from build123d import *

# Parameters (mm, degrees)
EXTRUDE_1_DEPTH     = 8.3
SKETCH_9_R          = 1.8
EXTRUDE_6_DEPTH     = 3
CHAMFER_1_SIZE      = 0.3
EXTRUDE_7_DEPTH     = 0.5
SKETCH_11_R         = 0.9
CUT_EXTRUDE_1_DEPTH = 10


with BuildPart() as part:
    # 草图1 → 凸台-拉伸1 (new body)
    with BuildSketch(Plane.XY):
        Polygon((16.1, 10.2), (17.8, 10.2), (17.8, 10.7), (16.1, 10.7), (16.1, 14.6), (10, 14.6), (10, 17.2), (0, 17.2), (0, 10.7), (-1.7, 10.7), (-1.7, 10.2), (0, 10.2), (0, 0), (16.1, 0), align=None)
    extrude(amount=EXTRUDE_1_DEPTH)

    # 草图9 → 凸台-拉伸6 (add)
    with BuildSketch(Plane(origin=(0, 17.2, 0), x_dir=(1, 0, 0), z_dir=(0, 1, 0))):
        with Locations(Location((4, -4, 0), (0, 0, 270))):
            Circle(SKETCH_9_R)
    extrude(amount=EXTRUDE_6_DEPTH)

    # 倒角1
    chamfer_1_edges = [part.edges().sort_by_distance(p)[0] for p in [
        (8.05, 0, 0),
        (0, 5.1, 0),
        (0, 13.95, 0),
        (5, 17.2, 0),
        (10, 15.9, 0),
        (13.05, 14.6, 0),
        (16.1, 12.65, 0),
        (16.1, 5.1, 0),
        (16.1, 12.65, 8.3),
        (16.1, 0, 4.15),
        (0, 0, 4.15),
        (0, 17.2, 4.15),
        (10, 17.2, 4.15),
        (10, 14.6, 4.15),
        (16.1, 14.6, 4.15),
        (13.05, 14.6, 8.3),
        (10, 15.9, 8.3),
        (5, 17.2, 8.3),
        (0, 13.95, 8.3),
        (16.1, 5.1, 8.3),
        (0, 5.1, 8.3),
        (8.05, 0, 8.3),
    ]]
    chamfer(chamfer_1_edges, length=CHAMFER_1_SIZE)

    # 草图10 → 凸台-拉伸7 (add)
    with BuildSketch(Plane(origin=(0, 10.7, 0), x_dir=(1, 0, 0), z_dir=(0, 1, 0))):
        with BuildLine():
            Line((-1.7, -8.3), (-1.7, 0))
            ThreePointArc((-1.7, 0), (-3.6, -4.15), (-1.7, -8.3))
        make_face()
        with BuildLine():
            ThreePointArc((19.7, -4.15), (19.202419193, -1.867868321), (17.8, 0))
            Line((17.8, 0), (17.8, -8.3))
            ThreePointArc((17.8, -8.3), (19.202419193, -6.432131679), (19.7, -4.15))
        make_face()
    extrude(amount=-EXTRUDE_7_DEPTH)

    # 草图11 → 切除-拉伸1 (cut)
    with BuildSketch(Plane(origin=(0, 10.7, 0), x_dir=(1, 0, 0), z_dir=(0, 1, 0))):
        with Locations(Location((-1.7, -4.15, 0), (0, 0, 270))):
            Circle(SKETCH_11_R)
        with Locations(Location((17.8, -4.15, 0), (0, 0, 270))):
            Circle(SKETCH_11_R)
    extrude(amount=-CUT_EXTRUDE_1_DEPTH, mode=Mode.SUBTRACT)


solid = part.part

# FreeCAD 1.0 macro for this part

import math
import FreeCAD as App
import Part
import Sketcher
from FreeCAD import Vector
Q = App.Units.Quantity


def edges_at(feature, points):
    """Names of the edges that pass closest to the given points."""
    edges = feature.Shape.Edges
    near = lambda p: min(range(len(edges)), key=lambda i: edges[i].distToShape(Part.Vertex(*p))[0])
    return sorted({f"Edge{near(p) + 1}" for p in points})


def add_polygon(sketch, points):
    """Adds a closed chain of lines whose ends are joined by coincident constraints."""
    first, n = sketch.GeometryCount, len(points)
    for a, b in zip(points, points[1:] + points[:1]):
        sketch.addGeometry(Part.LineSegment(App.Vector(*a, 0), App.Vector(*b, 0)), False)
    for i in range(n):
        sketch.addConstraint(Sketcher.Constraint("Coincident", first + i, 2, first + (i + 1) % n, 1))

doc = App.newDocument("Part")
body = doc.addObject("PartDesign::Body", "Body")

# Sketch on XY plane
sketch1 = doc.addObject("Sketcher::SketchObject", "Sketch")
body.addObject(sketch1)
sketch1.AttachmentSupport = (doc.XY_Plane, [""])
sketch1.MapMode = "FlatFace"
add_polygon(sketch1, [(16.1, 10.2), (17.8, 10.2), (17.8, 10.7), (16.1, 10.7), (16.1, 14.6), (10, 14.6), (10, 17.2), (0, 17.2), (0, 10.7), (-1.7, 10.7), (-1.7, 10.2), (0, 10.2), (0, 0), (16.1, 0)])  # lines 0-13
sketch1.addConstraint(Sketcher.Constraint("Horizontal", 0))
sketch1.addConstraint(Sketcher.Constraint("Vertical", 1))
sketch1.addConstraint(Sketcher.Constraint("Horizontal", 2))
sketch1.addConstraint(Sketcher.Constraint("Vertical", 3))
sketch1.addConstraint(Sketcher.Constraint("Horizontal", 4))
sketch1.addConstraint(Sketcher.Constraint("Vertical", 5))
sketch1.addConstraint(Sketcher.Constraint("Horizontal", 6))
sketch1.addConstraint(Sketcher.Constraint("Vertical", 7))
sketch1.addConstraint(Sketcher.Constraint("Horizontal", 8))
sketch1.addConstraint(Sketcher.Constraint("Vertical", 9))
sketch1.addConstraint(Sketcher.Constraint("Horizontal", 10))
sketch1.addConstraint(Sketcher.Constraint("Vertical", 11))
sketch1.addConstraint(Sketcher.Constraint("Horizontal", 12))
sketch1.addConstraint(Sketcher.Constraint("Vertical", 13))
sketch1.addConstraint(Sketcher.Constraint("Coincident", 11, 2, -1, 1))
sketch1.addConstraint(Sketcher.Constraint("PointOnObject", 6, 2, -2))
sketch1.addConstraint(Sketcher.Constraint("Horizontal", 2, 2, 7, 2))
sketch1.addConstraint(Sketcher.Constraint("Horizontal", 0, 2, 9, 2))
sketch1.addConstraint(Sketcher.Constraint("Vertical", 3, 2, 12, 2))
sketch1.addConstraint(Sketcher.Constraint("Equal", 2, 8))
sketch1.addConstraint(Sketcher.Constraint("DistanceX", 6, 2, 6, 1, Q("10 mm")))
sketch1.addConstraint(Sketcher.Constraint("DistanceX", 0, 1, 0, 2, Q("1.7 mm")))
sketch1.addConstraint(Sketcher.Constraint("DistanceX", 4, 2, 4, 1, Q("6.1 mm")))
sketch1.addConstraint(Sketcher.Constraint("DistanceY", 1, 1, 1, 2, Q("0.5 mm")))
sketch1.addConstraint(Sketcher.Constraint("DistanceY", 3, 1, 3, 2, Q("3.9 mm")))
sketch1.addConstraint(Sketcher.Constraint("DistanceY", 5, 1, 5, 2, Q("2.6 mm")))
sketch1.addConstraint(Sketcher.Constraint("DistanceY", 11, 2, 11, 1, Q("10.2 mm")))
pad1 = doc.addObject("PartDesign::Pad", "Pad")
body.addObject(pad1)
pad1.Profile = sketch1
pad1.Length = 8.3

# Sketch on XZ plane
sketch2 = doc.addObject("Sketcher::SketchObject", "Sketch001")
body.addObject(sketch2)
sketch2.AttachmentSupport = (doc.XZ_Plane, [""])
sketch2.MapMode = "FlatFace"
sketch2.AttachmentOffset = App.Placement(Vector(0, 0, -17.2), App.Rotation())
sketch2.addGeometry(Part.Circle(Vector(4, 4, 0), Vector(0, 0, 1), 1.8), False)
sketch2.addConstraint(Sketcher.Constraint("Diameter", 0, Q("3.6 mm")))
sketch2.addConstraint(Sketcher.Constraint("DistanceX", -1, 1, 0, 3, Q("4 mm")))
sketch2.addConstraint(Sketcher.Constraint("DistanceY", -1, 1, 0, 3, Q("4 mm")))
pad2 = doc.addObject("PartDesign::Pad", "Pad001")
body.addObject(pad2)
pad2.Profile = sketch2
pad2.Length = 3
pad2.Reversed = True
doc.recompute()

chamfer = doc.addObject("PartDesign::Chamfer", "Chamfer")
body.addObject(chamfer)
chamfer.Base = (pad2, edges_at(pad2, [
    (8.05, 0, 0),
    (0, 5.1, 0),
    (0, 13.95, 0),
    (5, 17.2, 0),
    (10, 15.9, 0),
    (13.05, 14.6, 0),
    (16.1, 12.65, 0),
    (16.1, 5.1, 0),
    (16.1, 12.65, 8.3),
    (16.1, 0, 4.15),
    (0, 0, 4.15),
    (0, 17.2, 4.15),
    (10, 17.2, 4.15),
    (10, 14.6, 4.15),
    (16.1, 14.6, 4.15),
    (13.05, 14.6, 8.3),
    (10, 15.9, 8.3),
    (5, 17.2, 8.3),
    (0, 13.95, 8.3),
    (16.1, 5.1, 8.3),
    (0, 5.1, 8.3),
    (8.05, 0, 8.3),
]))
chamfer.Size = 0.3

# Sketch on XZ plane
sketch3 = doc.addObject("Sketcher::SketchObject", "Sketch002")
body.addObject(sketch3)
sketch3.AttachmentSupport = (doc.XZ_Plane, [""])
sketch3.MapMode = "FlatFace"
sketch3.AttachmentOffset = App.Placement(Vector(0, 0, -10.7), App.Rotation())
sketch3.addGeometry(Part.LineSegment(Vector(-1.7, 8.3, 0), Vector(-1.7, 0, 0)), False)
sketch3.addGeometry(Part.ArcOfCircle(Part.Circle(Vector(1.9, 4.2, 0), Vector(0, 0, 1), 5.5), math.radians(131), math.radians(229)), False)
sketch3.addGeometry(Part.ArcOfCircle(Part.Circle(Vector(14.2, 4.2, 0), Vector(0, 0, 1), 5.5), math.radians(-49), math.radians(0)), False)
sketch3.addGeometry(Part.LineSegment(Vector(17.8, 0, 0), Vector(17.8, 8.3, 0)), False)
sketch3.addGeometry(Part.ArcOfCircle(Part.Circle(Vector(14.2, 4.1, 0), Vector(0, 0, 1), 5.5), math.radians(0), math.radians(49)), False)
sketch3.addConstraint(Sketcher.Constraint("Coincident", 0, 1, 1, 1))
sketch3.addConstraint(Sketcher.Constraint("Coincident", 1, 2, 0, 2))
sketch3.addConstraint(Sketcher.Constraint("Coincident", 2, 1, 3, 1))
sketch3.addConstraint(Sketcher.Constraint("Coincident", 3, 2, 4, 2))
sketch3.addConstraint(Sketcher.Constraint("Tangent", 4, 1, 2, 2))
sketch3.addConstraint(Sketcher.Constraint("Vertical", 0))
sketch3.addConstraint(Sketcher.Constraint("Vertical", 3))
sketch3.addConstraint(Sketcher.Constraint("Equal", 1, 2))
sketch3.addConstraint(Sketcher.Constraint("Equal", 2, 4))
sketch3.addConstraint(Sketcher.Constraint("PointOnObject", 1, 2, -1))
sketch3.addConstraint(Sketcher.Constraint("PointOnObject", 2, 1, -1))
sketch3.addConstraint(Sketcher.Constraint("Horizontal", 1, 3, 2, 3))
sketch3.addConstraint(Sketcher.Constraint("Horizontal", 2, 3, 4, 1))
sketch3.addConstraint(Sketcher.Constraint("DistanceY", 0, 2, 0, 1, Q("8.3 mm")))
sketch3.addConstraint(Sketcher.Constraint("DistanceX", 0, 1, -1, 1, Q("1.7 mm")))
sketch3.addConstraint(Sketcher.Constraint("DistanceX", -1, 1, 2, 1, Q("17.8 mm")))
sketch3.addConstraint(Sketcher.Constraint("DistanceX", -1, 1, 4, 1, Q("19.7 mm")))
pad3 = doc.addObject("PartDesign::Pad", "Pad002")
body.addObject(pad3)
pad3.Profile = sketch3
pad3.Length = 0.5

# Sketch on XZ plane
sketch4 = doc.addObject("Sketcher::SketchObject", "Sketch003")
body.addObject(sketch4)
sketch4.AttachmentSupport = (doc.XZ_Plane, [""])
sketch4.MapMode = "FlatFace"
sketch4.AttachmentOffset = App.Placement(Vector(0, 0, -10.7), App.Rotation())
sketch4.addGeometry(Part.Circle(Vector(-1.7, 4.2, 0), Vector(0, 0, 1), 0.9), False)
sketch4.addGeometry(Part.Circle(Vector(17.8, 4.2, 0), Vector(0, 0, 1), 0.9), False)
sketch4.addConstraint(Sketcher.Constraint("Equal", 0, 1))
sketch4.addConstraint(Sketcher.Constraint("Horizontal", 0, 3, 1, 3))
sketch4.addConstraint(Sketcher.Constraint("Diameter", 0, Q("1.8 mm")))
sketch4.addConstraint(Sketcher.Constraint("DistanceX", 0, 3, -1, 1, Q("1.7 mm")))
sketch4.addConstraint(Sketcher.Constraint("DistanceX", -1, 1, 1, 3, Q("17.8 mm")))
sketch4.addConstraint(Sketcher.Constraint("DistanceY", -1, 1, 0, 3, Q("4.15 mm")))
pocket1 = doc.addObject("PartDesign::Pocket", "Pocket")
body.addObject(pocket1)
pocket1.Profile = sketch4
pocket1.Length = 10
pocket1.Reversed = True

doc.recompute()
